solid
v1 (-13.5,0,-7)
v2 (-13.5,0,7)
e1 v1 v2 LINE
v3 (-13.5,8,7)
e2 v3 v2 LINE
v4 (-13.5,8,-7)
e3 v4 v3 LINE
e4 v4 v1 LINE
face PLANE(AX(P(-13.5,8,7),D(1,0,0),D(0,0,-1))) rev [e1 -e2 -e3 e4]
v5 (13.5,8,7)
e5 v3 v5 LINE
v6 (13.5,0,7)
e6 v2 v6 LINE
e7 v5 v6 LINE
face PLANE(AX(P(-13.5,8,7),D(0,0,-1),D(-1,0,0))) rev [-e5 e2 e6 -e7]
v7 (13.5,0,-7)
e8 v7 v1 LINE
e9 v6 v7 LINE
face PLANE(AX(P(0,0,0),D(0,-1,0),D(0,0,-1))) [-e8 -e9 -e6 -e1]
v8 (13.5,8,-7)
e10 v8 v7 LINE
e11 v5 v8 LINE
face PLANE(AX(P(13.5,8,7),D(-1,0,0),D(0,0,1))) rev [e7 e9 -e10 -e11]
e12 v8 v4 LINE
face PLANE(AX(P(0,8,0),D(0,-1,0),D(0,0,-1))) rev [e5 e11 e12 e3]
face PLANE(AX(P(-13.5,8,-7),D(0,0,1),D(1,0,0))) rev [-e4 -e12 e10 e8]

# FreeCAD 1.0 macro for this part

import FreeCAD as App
import Part
import Sketcher


def add_polygon(sketch, points):
    """Adds a closed chain of lines whose ends are joined by coincident constraints."""
    first, n = sketch.GeometryCount, len(points)
    for a, b in zip(points, points[1:] + points[:1]):
        sketch.addGeometry(Part.LineSegment(App.Vector(*a, 0), App.Vector(*b, 0)), False)
    for i in range(n):
        sketch.addConstraint(Sketcher.Constraint("Coincident", first + i, 2, first + (i + 1) % n, 1))

doc = App.newDocument("Part")
body = doc.addObject("PartDesign::Body", "Body")

sketch1 = doc.addObject("Sketcher::SketchObject", "Sketch")
body.addObject(sketch1)
sketch1.AttachmentSupport = (doc.XZ_Plane, [""])
sketch1.MapMode = "FlatFace"
add_polygon(sketch1, [(-13.5, -7), (-13.5, 7), (13.5, 7), (13.5, -7)])
sketch1.addConstraint([
    Sketcher.Constraint("Vertical", 0),
    Sketcher.Constraint("Horizontal", 1),
    Sketcher.Constraint("Vertical", 2),
    Sketcher.Constraint("Horizontal", 3),
    Sketcher.Constraint("Symmetric", 0, 2, 2, 2, -1, 1),
    Sketcher.Constraint("DistanceX", 1, 1, 1, 2, 27.0),
    Sketcher.Constraint("DistanceY", 0, 1, 0, 2, 14.0),
])
pad1 = doc.addObject("PartDesign::Pad", "Pad")
body.addObject(pad1)
pad1.Profile = sketch1
pad1.Length = 8
pad1.Reversed = True

doc.recompute()
